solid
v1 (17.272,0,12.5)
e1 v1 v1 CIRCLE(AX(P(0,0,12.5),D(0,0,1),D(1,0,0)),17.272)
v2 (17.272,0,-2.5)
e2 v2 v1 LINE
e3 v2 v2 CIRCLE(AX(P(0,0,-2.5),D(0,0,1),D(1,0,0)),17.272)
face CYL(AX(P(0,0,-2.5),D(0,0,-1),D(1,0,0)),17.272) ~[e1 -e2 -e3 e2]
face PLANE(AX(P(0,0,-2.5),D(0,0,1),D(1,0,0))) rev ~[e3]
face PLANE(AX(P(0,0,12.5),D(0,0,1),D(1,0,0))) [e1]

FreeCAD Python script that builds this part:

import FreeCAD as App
import Part
import Sketcher
from FreeCAD import Vector
Q = App.Units.Quantity

doc = App.newDocument("Part")
params = doc.addObject("Spreadsheet::Sheet", "Params")
for row, (alias, value) in enumerate([
    ("pad1_length", "15 mm"),
], start=1):
    params.set(f"A{row}", alias)
    params.set(f"B{row}", "=" + value)
    params.setAlias(f"B{row}", alias)

body = doc.addObject("PartDesign::Body", "Body")

# Sketch on XY plane
sketch1 = doc.addObject("Sketcher::SketchObject", "Sketch")
body.addObject(sketch1)
sketch1.AttachmentSupport = (doc.XY_Plane, [""])
sketch1.MapMode = "FlatFace"
sketch1.AttachmentOffset = App.Placement(Vector(0, 0, -2.5), App.Rotation())
sketch1.addGeometry(Part.Circle(Vector(0, 0, 0), Vector(0, 0, 1), 17), False)
sketch1.addConstraint([
    Sketcher.Constraint("Coincident", 0, 3, -1, 1),
    Sketcher.Constraint("Diameter", 0, Q("34.544 mm")),
])
pad1 = doc.addObject("PartDesign::Pad", "Pad")
body.addObject(pad1)
pad1.Profile = sketch1
pad1.setExpression("Length", "Params.pad1_length")

doc.recompute()
